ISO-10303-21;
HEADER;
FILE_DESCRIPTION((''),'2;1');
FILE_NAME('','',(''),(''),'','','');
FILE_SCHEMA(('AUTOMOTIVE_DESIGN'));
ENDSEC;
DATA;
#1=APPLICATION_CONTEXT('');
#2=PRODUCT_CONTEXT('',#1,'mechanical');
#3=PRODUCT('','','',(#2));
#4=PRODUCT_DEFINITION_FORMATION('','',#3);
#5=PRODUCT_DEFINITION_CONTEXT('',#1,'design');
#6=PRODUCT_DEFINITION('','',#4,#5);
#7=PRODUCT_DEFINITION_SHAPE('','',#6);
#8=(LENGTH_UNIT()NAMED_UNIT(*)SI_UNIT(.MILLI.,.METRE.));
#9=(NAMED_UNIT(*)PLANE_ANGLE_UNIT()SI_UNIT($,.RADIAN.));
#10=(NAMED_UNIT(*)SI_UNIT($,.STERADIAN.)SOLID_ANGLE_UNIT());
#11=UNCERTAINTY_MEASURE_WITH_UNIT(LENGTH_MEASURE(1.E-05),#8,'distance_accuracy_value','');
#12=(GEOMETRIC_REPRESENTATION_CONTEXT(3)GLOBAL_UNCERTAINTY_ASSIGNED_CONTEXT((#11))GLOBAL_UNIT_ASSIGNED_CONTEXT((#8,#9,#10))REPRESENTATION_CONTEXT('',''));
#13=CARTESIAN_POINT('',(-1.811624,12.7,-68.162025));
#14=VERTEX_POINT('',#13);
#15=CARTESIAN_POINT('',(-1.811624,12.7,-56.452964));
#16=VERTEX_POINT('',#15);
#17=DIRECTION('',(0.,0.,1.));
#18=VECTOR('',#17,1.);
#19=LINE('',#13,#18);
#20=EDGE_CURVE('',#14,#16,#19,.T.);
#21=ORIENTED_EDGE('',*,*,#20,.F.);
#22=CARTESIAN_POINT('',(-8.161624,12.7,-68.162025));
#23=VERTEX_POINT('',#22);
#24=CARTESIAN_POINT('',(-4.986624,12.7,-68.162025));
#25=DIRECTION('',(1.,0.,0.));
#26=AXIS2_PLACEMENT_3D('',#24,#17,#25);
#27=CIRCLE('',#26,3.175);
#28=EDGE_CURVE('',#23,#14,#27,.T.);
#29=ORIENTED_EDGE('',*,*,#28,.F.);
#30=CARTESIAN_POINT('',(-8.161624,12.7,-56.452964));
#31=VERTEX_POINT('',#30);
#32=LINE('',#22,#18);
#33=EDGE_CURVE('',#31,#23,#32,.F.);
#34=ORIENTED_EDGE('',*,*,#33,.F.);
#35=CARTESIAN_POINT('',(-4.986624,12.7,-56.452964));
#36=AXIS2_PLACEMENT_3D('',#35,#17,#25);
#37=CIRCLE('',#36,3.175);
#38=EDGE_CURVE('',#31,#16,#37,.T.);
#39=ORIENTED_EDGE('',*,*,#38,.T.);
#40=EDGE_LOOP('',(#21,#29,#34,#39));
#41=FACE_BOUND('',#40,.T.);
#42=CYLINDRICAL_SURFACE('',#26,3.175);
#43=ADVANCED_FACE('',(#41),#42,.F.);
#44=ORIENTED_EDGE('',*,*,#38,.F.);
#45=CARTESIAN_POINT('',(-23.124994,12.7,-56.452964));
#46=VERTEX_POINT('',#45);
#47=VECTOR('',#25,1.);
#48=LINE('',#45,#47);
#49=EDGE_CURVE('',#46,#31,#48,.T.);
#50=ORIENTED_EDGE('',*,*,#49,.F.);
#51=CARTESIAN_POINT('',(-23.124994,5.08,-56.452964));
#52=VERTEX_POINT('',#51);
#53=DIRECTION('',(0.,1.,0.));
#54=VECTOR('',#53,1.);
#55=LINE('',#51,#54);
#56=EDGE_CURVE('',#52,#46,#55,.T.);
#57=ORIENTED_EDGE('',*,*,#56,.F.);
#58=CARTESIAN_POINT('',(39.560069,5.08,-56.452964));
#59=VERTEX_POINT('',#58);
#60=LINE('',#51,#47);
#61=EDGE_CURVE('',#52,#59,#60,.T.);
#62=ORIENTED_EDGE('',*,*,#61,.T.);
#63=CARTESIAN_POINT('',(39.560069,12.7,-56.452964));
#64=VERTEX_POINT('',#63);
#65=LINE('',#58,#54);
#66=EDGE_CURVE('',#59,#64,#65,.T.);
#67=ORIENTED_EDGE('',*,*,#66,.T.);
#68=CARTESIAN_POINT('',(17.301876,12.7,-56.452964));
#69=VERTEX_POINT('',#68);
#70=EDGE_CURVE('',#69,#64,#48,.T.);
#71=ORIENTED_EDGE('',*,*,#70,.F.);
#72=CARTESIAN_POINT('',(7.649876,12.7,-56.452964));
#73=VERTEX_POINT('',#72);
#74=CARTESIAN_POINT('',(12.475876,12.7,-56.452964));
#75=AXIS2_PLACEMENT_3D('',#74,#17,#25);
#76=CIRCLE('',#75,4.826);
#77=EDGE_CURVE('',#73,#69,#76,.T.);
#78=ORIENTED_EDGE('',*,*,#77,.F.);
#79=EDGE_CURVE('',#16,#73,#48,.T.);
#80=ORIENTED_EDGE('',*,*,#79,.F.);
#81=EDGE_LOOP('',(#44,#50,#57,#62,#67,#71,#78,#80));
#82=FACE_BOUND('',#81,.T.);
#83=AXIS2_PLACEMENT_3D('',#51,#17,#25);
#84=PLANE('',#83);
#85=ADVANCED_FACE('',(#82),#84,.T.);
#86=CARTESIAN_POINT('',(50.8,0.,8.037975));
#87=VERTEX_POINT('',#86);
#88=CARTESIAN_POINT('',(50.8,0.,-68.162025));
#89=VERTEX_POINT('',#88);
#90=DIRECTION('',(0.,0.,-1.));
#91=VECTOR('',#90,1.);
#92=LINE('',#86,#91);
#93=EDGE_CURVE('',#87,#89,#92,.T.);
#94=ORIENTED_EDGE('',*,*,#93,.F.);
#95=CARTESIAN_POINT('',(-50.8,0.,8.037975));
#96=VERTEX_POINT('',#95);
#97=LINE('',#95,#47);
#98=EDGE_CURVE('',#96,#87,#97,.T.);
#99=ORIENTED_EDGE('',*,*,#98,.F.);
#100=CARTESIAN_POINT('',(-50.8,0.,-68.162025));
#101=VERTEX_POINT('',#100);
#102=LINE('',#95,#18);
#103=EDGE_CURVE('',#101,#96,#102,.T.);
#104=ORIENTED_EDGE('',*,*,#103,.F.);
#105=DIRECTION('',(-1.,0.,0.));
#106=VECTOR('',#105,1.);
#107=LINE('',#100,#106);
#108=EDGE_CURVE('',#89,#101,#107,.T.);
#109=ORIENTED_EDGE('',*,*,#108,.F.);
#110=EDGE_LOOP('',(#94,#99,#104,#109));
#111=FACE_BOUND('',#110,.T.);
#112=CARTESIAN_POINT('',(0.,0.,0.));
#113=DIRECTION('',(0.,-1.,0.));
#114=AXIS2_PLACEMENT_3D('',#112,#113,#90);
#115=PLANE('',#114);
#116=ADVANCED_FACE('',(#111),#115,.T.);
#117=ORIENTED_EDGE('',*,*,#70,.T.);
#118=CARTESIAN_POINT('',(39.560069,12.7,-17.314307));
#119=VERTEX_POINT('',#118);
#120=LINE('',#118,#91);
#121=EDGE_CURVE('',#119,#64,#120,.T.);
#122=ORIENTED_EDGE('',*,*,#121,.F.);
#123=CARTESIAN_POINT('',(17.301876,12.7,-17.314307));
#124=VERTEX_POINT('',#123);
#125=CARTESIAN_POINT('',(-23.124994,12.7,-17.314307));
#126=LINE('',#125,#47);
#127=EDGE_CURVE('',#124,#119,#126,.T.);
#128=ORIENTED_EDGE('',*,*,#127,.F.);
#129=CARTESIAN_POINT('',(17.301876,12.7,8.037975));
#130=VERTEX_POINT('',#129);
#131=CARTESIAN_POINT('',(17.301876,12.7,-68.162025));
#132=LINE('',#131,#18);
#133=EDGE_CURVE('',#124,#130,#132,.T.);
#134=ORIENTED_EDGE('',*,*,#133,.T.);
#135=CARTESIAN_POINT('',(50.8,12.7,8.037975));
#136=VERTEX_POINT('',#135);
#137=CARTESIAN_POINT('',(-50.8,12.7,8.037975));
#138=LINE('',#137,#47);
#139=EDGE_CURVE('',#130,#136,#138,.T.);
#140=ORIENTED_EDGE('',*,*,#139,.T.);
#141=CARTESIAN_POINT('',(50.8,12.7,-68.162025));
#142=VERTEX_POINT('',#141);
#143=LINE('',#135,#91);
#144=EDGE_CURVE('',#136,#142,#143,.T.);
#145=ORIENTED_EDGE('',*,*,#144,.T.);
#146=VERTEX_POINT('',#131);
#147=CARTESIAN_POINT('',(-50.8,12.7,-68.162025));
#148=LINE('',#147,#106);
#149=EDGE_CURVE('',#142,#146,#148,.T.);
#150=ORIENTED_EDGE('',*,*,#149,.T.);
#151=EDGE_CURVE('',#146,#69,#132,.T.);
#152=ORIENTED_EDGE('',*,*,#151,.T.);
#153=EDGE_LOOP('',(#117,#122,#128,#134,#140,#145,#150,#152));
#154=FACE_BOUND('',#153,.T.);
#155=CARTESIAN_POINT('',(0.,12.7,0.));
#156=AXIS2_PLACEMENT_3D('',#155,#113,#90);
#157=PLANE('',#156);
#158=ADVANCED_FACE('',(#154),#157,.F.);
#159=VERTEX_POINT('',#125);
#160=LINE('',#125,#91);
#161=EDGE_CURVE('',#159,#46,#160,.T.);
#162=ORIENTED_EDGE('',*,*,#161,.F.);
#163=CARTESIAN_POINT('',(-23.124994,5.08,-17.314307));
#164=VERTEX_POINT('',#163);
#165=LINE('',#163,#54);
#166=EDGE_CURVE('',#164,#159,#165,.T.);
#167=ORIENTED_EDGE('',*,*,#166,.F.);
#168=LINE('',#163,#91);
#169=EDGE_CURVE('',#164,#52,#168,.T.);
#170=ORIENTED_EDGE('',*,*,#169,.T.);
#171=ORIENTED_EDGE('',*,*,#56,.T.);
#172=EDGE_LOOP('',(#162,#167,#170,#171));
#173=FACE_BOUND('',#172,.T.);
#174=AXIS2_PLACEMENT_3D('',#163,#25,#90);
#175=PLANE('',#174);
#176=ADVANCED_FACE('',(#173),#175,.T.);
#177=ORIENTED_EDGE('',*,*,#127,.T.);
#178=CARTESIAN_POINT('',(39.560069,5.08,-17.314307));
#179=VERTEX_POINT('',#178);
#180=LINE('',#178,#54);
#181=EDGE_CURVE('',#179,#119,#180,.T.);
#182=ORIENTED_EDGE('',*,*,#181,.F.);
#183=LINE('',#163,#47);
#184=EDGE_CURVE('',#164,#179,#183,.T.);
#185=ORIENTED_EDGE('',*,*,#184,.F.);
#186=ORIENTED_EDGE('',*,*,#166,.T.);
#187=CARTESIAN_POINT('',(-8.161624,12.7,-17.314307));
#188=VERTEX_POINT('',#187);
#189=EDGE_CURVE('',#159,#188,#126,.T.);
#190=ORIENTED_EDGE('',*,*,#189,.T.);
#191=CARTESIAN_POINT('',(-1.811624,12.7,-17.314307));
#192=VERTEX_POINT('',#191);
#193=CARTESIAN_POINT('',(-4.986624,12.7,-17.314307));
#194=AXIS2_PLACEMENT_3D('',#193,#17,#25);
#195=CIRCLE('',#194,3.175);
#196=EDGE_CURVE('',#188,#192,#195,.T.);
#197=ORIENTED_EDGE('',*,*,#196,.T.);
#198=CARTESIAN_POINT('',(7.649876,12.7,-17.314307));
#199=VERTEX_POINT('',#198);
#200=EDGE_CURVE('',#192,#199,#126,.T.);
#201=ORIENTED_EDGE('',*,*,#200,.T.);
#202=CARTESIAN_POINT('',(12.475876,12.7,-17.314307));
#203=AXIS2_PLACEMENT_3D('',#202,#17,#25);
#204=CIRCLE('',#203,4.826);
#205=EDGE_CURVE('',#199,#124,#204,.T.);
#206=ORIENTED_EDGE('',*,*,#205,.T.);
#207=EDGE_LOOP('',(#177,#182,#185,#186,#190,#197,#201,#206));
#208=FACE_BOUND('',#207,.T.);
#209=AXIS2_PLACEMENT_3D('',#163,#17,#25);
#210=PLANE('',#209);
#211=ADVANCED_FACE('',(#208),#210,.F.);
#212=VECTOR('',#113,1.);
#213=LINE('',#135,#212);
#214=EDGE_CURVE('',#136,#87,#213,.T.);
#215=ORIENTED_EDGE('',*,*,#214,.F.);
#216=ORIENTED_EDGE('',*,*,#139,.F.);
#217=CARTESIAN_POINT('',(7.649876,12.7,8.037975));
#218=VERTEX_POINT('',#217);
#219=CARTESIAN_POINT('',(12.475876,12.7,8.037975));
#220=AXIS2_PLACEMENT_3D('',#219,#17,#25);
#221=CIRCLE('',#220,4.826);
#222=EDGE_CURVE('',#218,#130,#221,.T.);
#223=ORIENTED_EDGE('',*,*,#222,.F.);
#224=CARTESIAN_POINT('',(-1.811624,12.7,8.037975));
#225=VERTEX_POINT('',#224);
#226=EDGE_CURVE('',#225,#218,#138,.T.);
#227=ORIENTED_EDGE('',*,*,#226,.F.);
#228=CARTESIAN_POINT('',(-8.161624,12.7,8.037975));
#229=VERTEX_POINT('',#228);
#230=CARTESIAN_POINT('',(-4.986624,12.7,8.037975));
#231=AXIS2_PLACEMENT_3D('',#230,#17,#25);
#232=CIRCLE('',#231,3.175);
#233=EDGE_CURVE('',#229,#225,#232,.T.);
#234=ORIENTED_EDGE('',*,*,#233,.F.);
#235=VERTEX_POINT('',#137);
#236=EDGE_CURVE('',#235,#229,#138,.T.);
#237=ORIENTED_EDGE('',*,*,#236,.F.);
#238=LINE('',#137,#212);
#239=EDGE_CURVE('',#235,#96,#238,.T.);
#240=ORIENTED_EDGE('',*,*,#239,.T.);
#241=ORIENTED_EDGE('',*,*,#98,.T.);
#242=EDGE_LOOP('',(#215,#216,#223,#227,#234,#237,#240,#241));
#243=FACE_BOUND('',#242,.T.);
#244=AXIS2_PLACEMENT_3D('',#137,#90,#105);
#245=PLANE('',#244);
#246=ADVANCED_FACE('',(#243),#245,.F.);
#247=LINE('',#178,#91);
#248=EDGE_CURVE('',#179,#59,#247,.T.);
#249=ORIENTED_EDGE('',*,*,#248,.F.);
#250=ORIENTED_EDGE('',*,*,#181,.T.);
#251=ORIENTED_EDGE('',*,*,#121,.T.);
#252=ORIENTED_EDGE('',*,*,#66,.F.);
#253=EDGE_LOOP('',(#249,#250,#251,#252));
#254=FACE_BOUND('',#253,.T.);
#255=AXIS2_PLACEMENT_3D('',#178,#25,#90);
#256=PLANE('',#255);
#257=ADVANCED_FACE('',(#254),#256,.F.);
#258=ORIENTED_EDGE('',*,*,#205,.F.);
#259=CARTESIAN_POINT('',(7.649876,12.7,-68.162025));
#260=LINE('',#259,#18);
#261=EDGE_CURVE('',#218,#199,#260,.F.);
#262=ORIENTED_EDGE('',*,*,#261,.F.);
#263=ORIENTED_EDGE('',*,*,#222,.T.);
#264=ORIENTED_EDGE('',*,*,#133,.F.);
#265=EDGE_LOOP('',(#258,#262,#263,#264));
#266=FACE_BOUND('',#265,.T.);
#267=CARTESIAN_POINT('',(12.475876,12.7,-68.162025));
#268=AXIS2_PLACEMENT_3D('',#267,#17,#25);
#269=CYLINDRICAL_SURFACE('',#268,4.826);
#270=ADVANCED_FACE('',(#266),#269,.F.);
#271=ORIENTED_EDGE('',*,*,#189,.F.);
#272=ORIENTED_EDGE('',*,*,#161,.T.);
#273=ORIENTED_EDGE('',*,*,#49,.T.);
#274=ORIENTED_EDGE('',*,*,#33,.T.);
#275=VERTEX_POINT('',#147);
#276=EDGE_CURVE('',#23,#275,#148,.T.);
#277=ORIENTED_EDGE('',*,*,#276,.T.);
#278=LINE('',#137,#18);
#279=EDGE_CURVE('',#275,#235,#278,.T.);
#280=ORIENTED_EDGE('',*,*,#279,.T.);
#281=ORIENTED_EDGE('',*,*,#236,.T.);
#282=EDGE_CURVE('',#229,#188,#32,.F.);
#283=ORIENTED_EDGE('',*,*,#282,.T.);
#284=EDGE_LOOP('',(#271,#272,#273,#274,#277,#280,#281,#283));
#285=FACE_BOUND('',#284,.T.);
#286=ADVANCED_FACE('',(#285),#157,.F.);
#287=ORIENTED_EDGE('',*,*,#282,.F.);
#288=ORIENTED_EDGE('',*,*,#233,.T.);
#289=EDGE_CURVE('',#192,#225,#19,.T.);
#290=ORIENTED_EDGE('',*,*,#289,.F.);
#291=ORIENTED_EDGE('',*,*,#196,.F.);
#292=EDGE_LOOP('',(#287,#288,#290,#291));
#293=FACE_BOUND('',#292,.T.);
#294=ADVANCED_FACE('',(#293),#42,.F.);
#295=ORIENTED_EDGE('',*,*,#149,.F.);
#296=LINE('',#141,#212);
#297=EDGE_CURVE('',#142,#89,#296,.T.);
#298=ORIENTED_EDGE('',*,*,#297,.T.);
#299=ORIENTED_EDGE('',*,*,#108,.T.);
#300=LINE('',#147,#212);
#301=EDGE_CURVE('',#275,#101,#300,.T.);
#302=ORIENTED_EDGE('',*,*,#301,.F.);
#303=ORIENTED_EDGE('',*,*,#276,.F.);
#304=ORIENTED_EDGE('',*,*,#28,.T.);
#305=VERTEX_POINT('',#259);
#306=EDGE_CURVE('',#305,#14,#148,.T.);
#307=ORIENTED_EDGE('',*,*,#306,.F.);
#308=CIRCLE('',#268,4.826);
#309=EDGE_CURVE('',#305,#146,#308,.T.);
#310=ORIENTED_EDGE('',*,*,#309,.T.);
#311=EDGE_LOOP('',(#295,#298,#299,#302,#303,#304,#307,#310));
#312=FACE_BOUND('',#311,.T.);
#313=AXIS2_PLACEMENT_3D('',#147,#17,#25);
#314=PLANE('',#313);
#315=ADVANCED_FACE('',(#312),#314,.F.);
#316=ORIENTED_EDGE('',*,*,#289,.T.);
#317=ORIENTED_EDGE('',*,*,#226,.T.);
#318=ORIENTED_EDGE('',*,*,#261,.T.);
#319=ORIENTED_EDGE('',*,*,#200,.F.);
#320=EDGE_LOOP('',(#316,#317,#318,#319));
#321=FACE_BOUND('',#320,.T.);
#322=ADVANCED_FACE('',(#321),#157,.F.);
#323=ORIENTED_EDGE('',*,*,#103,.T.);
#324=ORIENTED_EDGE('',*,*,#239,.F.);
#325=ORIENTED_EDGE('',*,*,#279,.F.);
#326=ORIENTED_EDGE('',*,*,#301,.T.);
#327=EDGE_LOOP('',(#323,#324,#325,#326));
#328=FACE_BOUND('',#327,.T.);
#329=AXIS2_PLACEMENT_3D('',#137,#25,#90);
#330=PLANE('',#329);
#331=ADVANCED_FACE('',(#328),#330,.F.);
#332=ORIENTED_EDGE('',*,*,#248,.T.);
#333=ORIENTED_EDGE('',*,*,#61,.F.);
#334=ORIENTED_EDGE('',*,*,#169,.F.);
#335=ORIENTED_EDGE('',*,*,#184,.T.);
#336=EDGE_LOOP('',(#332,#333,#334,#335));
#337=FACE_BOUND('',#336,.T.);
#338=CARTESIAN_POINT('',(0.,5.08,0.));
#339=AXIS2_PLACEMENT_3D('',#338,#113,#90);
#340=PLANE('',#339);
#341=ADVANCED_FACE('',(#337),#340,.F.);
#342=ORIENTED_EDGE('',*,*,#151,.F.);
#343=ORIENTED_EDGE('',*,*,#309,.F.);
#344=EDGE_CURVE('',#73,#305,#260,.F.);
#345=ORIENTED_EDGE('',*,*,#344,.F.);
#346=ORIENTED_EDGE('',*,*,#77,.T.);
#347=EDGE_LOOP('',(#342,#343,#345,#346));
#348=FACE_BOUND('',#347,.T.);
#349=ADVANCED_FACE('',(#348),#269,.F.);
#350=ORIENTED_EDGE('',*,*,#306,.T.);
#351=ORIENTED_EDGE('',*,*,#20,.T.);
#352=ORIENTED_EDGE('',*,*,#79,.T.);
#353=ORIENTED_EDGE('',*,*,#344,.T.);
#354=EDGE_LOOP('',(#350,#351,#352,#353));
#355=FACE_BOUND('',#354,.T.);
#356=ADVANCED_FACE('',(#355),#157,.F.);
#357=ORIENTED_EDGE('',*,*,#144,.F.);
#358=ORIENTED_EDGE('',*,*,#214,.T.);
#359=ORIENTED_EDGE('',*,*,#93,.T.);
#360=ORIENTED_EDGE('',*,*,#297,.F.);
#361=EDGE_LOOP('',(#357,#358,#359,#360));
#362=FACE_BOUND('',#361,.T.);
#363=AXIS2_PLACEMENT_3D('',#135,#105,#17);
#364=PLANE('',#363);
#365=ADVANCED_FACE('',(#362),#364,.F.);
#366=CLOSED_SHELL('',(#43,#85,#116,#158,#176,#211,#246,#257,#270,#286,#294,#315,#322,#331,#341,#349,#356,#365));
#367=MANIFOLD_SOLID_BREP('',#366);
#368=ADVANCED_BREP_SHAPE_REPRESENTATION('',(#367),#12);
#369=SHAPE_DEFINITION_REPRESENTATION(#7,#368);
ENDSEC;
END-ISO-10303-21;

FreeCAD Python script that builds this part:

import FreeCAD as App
import Part
import Sketcher
Q = App.Units.Quantity

doc = App.newDocument("Part")
body = doc.addObject("PartDesign::Body", "Body")

sketch1 = body.newObject("Sketcher::SketchObject", "Sketch")
sketch1.AttachmentSupport = (doc.getObject("XZ_Plane"), [""])
sketch1.MapMode = "FlatFace"
sketch1.addGeometry(Part.LineSegment(App.Vector(-51, -68, 0), App.Vector(-51, 8, 0)), False)
sketch1.addGeometry(Part.LineSegment(App.Vector(-51, 8, 0), App.Vector(51, 8, 0)), False)
sketch1.addGeometry(Part.LineSegment(App.Vector(51, 8, 0), App.Vector(51, -68, 0)), False)
sketch1.addGeometry(Part.LineSegment(App.Vector(51, -68, 0), App.Vector(-51, -68, 0)), False)
sketch1.addConstraint(Sketcher.Constraint("Coincident", 0, 2, 1, 1))
sketch1.addConstraint(Sketcher.Constraint("Coincident", 1, 2, 2, 1))
sketch1.addConstraint(Sketcher.Constraint("Coincident", 2, 2, 3, 1))
sketch1.addConstraint(Sketcher.Constraint("Coincident", 3, 2, 0, 1))
sketch1.addConstraint(Sketcher.Constraint("Vertical", 0))
sketch1.addConstraint(Sketcher.Constraint("Horizontal", 1))
sketch1.addConstraint(Sketcher.Constraint("Vertical", 2))
sketch1.addConstraint(Sketcher.Constraint("Horizontal", 3))
sketch1.addConstraint(Sketcher.Constraint("DistanceX", 1, 1, 1, 2, Q("4 in")))
sketch1.addConstraint(Sketcher.Constraint("DistanceY", 0, 1, 0, 2, Q("3 in")))
sketch1.addConstraint(Sketcher.Constraint("DistanceX", 0, 2, -1, 1, Q("2 in")))
sketch1.addConstraint(Sketcher.Constraint("DistanceY", -1, 1, 0, 2, 8.037975))
pad1 = body.newObject("PartDesign::Pad", "Pad")
pad1.Profile = sketch1
pad1.Length = Q("0.5 in")
pad1.Reversed = True

sketch2 = body.newObject("Sketcher::SketchObject", "Sketch001")
sketch2.AttachmentSupport = (doc.getObject("XZ_Plane"), [""])
sketch2.MapMode = "FlatFace"
sketch2.AttachmentOffset = App.Placement(App.Vector(0, 0, -0.5 * 25.4), App.Rotation())
sketch2.addGeometry(Part.LineSegment(App.Vector(-23, -56, 0), App.Vector(-23, -17, 0)), False)
sketch2.addGeometry(Part.LineSegment(App.Vector(-23, -17, 0), App.Vector(40, -17, 0)), False)
sketch2.addGeometry(Part.LineSegment(App.Vector(40, -17, 0), App.Vector(40, -56, 0)), False)
sketch2.addGeometry(Part.LineSegment(App.Vector(40, -56, 0), App.Vector(-23, -56, 0)), False)
sketch2.addConstraint(Sketcher.Constraint("Coincident", 0, 2, 1, 1))
sketch2.addConstraint(Sketcher.Constraint("Coincident", 1, 2, 2, 1))
sketch2.addConstraint(Sketcher.Constraint("Coincident", 2, 2, 3, 1))
sketch2.addConstraint(Sketcher.Constraint("Coincident", 3, 2, 0, 1))
sketch2.addConstraint(Sketcher.Constraint("Vertical", 0))
sketch2.addConstraint(Sketcher.Constraint("Horizontal", 1))
sketch2.addConstraint(Sketcher.Constraint("Vertical", 2))
sketch2.addConstraint(Sketcher.Constraint("Horizontal", 3))
sketch2.addConstraint(Sketcher.Constraint("DistanceX", 1, 1, 1, 2, 62.685063))
sketch2.addConstraint(Sketcher.Constraint("DistanceY", 0, 1, 0, 2, 39.138657))
sketch2.addConstraint(Sketcher.Constraint("DistanceX", -1, 1, 1, 2, 39.560069))
sketch2.addConstraint(Sketcher.Constraint("DistanceY", 0, 2, -1, 1, 17.314307))
pocket1 = body.newObject("PartDesign::Pocket", "Pocket")
pocket1.Profile = sketch2
pocket1.Length = Q("0.3 in")
pocket1.Reversed = True

sketch3 = body.newObject("Sketcher::SketchObject", "Sketch002")
sketch3.AttachmentSupport = (doc.getObject("XY_Plane"), [""])
sketch3.MapMode = "FlatFace"
sketch3.AttachmentOffset = App.Placement(App.Vector(0, 0, 8.037975), App.Rotation())
sketch3.addGeometry(Part.Circle(App.Vector(-5, 12.7, 0), App.Vector(0, 0, 1), 3.2), False)
sketch3.addGeometry(Part.Circle(App.Vector(12.5, 12.7, 0), App.Vector(0, 0, 1), 4.8), False)
sketch3.addConstraint(Sketcher.Constraint("Horizontal", 0, 3, 1, 3))
sketch3.addConstraint(Sketcher.Constraint("Diameter", 0, Q("0.25 in")))
sketch3.addConstraint(Sketcher.Constraint("Diameter", 1, Q("0.38 in")))
sketch3.addConstraint(Sketcher.Constraint("DistanceY", -1, 1, 0, 3, Q("0.5 in")))
sketch3.addConstraint(Sketcher.Constraint("DistanceX", 0, 3, 1, 3, Q("0.6875 in")))
sketch3.addConstraint(Sketcher.Constraint("DistanceX", 0, 3, -1, 1, 4.986624))
pocket2 = body.newObject("PartDesign::Pocket", "Pocket001")
pocket2.Profile = sketch3
pocket2.Type = "ThroughAll"

doc.recompute()
